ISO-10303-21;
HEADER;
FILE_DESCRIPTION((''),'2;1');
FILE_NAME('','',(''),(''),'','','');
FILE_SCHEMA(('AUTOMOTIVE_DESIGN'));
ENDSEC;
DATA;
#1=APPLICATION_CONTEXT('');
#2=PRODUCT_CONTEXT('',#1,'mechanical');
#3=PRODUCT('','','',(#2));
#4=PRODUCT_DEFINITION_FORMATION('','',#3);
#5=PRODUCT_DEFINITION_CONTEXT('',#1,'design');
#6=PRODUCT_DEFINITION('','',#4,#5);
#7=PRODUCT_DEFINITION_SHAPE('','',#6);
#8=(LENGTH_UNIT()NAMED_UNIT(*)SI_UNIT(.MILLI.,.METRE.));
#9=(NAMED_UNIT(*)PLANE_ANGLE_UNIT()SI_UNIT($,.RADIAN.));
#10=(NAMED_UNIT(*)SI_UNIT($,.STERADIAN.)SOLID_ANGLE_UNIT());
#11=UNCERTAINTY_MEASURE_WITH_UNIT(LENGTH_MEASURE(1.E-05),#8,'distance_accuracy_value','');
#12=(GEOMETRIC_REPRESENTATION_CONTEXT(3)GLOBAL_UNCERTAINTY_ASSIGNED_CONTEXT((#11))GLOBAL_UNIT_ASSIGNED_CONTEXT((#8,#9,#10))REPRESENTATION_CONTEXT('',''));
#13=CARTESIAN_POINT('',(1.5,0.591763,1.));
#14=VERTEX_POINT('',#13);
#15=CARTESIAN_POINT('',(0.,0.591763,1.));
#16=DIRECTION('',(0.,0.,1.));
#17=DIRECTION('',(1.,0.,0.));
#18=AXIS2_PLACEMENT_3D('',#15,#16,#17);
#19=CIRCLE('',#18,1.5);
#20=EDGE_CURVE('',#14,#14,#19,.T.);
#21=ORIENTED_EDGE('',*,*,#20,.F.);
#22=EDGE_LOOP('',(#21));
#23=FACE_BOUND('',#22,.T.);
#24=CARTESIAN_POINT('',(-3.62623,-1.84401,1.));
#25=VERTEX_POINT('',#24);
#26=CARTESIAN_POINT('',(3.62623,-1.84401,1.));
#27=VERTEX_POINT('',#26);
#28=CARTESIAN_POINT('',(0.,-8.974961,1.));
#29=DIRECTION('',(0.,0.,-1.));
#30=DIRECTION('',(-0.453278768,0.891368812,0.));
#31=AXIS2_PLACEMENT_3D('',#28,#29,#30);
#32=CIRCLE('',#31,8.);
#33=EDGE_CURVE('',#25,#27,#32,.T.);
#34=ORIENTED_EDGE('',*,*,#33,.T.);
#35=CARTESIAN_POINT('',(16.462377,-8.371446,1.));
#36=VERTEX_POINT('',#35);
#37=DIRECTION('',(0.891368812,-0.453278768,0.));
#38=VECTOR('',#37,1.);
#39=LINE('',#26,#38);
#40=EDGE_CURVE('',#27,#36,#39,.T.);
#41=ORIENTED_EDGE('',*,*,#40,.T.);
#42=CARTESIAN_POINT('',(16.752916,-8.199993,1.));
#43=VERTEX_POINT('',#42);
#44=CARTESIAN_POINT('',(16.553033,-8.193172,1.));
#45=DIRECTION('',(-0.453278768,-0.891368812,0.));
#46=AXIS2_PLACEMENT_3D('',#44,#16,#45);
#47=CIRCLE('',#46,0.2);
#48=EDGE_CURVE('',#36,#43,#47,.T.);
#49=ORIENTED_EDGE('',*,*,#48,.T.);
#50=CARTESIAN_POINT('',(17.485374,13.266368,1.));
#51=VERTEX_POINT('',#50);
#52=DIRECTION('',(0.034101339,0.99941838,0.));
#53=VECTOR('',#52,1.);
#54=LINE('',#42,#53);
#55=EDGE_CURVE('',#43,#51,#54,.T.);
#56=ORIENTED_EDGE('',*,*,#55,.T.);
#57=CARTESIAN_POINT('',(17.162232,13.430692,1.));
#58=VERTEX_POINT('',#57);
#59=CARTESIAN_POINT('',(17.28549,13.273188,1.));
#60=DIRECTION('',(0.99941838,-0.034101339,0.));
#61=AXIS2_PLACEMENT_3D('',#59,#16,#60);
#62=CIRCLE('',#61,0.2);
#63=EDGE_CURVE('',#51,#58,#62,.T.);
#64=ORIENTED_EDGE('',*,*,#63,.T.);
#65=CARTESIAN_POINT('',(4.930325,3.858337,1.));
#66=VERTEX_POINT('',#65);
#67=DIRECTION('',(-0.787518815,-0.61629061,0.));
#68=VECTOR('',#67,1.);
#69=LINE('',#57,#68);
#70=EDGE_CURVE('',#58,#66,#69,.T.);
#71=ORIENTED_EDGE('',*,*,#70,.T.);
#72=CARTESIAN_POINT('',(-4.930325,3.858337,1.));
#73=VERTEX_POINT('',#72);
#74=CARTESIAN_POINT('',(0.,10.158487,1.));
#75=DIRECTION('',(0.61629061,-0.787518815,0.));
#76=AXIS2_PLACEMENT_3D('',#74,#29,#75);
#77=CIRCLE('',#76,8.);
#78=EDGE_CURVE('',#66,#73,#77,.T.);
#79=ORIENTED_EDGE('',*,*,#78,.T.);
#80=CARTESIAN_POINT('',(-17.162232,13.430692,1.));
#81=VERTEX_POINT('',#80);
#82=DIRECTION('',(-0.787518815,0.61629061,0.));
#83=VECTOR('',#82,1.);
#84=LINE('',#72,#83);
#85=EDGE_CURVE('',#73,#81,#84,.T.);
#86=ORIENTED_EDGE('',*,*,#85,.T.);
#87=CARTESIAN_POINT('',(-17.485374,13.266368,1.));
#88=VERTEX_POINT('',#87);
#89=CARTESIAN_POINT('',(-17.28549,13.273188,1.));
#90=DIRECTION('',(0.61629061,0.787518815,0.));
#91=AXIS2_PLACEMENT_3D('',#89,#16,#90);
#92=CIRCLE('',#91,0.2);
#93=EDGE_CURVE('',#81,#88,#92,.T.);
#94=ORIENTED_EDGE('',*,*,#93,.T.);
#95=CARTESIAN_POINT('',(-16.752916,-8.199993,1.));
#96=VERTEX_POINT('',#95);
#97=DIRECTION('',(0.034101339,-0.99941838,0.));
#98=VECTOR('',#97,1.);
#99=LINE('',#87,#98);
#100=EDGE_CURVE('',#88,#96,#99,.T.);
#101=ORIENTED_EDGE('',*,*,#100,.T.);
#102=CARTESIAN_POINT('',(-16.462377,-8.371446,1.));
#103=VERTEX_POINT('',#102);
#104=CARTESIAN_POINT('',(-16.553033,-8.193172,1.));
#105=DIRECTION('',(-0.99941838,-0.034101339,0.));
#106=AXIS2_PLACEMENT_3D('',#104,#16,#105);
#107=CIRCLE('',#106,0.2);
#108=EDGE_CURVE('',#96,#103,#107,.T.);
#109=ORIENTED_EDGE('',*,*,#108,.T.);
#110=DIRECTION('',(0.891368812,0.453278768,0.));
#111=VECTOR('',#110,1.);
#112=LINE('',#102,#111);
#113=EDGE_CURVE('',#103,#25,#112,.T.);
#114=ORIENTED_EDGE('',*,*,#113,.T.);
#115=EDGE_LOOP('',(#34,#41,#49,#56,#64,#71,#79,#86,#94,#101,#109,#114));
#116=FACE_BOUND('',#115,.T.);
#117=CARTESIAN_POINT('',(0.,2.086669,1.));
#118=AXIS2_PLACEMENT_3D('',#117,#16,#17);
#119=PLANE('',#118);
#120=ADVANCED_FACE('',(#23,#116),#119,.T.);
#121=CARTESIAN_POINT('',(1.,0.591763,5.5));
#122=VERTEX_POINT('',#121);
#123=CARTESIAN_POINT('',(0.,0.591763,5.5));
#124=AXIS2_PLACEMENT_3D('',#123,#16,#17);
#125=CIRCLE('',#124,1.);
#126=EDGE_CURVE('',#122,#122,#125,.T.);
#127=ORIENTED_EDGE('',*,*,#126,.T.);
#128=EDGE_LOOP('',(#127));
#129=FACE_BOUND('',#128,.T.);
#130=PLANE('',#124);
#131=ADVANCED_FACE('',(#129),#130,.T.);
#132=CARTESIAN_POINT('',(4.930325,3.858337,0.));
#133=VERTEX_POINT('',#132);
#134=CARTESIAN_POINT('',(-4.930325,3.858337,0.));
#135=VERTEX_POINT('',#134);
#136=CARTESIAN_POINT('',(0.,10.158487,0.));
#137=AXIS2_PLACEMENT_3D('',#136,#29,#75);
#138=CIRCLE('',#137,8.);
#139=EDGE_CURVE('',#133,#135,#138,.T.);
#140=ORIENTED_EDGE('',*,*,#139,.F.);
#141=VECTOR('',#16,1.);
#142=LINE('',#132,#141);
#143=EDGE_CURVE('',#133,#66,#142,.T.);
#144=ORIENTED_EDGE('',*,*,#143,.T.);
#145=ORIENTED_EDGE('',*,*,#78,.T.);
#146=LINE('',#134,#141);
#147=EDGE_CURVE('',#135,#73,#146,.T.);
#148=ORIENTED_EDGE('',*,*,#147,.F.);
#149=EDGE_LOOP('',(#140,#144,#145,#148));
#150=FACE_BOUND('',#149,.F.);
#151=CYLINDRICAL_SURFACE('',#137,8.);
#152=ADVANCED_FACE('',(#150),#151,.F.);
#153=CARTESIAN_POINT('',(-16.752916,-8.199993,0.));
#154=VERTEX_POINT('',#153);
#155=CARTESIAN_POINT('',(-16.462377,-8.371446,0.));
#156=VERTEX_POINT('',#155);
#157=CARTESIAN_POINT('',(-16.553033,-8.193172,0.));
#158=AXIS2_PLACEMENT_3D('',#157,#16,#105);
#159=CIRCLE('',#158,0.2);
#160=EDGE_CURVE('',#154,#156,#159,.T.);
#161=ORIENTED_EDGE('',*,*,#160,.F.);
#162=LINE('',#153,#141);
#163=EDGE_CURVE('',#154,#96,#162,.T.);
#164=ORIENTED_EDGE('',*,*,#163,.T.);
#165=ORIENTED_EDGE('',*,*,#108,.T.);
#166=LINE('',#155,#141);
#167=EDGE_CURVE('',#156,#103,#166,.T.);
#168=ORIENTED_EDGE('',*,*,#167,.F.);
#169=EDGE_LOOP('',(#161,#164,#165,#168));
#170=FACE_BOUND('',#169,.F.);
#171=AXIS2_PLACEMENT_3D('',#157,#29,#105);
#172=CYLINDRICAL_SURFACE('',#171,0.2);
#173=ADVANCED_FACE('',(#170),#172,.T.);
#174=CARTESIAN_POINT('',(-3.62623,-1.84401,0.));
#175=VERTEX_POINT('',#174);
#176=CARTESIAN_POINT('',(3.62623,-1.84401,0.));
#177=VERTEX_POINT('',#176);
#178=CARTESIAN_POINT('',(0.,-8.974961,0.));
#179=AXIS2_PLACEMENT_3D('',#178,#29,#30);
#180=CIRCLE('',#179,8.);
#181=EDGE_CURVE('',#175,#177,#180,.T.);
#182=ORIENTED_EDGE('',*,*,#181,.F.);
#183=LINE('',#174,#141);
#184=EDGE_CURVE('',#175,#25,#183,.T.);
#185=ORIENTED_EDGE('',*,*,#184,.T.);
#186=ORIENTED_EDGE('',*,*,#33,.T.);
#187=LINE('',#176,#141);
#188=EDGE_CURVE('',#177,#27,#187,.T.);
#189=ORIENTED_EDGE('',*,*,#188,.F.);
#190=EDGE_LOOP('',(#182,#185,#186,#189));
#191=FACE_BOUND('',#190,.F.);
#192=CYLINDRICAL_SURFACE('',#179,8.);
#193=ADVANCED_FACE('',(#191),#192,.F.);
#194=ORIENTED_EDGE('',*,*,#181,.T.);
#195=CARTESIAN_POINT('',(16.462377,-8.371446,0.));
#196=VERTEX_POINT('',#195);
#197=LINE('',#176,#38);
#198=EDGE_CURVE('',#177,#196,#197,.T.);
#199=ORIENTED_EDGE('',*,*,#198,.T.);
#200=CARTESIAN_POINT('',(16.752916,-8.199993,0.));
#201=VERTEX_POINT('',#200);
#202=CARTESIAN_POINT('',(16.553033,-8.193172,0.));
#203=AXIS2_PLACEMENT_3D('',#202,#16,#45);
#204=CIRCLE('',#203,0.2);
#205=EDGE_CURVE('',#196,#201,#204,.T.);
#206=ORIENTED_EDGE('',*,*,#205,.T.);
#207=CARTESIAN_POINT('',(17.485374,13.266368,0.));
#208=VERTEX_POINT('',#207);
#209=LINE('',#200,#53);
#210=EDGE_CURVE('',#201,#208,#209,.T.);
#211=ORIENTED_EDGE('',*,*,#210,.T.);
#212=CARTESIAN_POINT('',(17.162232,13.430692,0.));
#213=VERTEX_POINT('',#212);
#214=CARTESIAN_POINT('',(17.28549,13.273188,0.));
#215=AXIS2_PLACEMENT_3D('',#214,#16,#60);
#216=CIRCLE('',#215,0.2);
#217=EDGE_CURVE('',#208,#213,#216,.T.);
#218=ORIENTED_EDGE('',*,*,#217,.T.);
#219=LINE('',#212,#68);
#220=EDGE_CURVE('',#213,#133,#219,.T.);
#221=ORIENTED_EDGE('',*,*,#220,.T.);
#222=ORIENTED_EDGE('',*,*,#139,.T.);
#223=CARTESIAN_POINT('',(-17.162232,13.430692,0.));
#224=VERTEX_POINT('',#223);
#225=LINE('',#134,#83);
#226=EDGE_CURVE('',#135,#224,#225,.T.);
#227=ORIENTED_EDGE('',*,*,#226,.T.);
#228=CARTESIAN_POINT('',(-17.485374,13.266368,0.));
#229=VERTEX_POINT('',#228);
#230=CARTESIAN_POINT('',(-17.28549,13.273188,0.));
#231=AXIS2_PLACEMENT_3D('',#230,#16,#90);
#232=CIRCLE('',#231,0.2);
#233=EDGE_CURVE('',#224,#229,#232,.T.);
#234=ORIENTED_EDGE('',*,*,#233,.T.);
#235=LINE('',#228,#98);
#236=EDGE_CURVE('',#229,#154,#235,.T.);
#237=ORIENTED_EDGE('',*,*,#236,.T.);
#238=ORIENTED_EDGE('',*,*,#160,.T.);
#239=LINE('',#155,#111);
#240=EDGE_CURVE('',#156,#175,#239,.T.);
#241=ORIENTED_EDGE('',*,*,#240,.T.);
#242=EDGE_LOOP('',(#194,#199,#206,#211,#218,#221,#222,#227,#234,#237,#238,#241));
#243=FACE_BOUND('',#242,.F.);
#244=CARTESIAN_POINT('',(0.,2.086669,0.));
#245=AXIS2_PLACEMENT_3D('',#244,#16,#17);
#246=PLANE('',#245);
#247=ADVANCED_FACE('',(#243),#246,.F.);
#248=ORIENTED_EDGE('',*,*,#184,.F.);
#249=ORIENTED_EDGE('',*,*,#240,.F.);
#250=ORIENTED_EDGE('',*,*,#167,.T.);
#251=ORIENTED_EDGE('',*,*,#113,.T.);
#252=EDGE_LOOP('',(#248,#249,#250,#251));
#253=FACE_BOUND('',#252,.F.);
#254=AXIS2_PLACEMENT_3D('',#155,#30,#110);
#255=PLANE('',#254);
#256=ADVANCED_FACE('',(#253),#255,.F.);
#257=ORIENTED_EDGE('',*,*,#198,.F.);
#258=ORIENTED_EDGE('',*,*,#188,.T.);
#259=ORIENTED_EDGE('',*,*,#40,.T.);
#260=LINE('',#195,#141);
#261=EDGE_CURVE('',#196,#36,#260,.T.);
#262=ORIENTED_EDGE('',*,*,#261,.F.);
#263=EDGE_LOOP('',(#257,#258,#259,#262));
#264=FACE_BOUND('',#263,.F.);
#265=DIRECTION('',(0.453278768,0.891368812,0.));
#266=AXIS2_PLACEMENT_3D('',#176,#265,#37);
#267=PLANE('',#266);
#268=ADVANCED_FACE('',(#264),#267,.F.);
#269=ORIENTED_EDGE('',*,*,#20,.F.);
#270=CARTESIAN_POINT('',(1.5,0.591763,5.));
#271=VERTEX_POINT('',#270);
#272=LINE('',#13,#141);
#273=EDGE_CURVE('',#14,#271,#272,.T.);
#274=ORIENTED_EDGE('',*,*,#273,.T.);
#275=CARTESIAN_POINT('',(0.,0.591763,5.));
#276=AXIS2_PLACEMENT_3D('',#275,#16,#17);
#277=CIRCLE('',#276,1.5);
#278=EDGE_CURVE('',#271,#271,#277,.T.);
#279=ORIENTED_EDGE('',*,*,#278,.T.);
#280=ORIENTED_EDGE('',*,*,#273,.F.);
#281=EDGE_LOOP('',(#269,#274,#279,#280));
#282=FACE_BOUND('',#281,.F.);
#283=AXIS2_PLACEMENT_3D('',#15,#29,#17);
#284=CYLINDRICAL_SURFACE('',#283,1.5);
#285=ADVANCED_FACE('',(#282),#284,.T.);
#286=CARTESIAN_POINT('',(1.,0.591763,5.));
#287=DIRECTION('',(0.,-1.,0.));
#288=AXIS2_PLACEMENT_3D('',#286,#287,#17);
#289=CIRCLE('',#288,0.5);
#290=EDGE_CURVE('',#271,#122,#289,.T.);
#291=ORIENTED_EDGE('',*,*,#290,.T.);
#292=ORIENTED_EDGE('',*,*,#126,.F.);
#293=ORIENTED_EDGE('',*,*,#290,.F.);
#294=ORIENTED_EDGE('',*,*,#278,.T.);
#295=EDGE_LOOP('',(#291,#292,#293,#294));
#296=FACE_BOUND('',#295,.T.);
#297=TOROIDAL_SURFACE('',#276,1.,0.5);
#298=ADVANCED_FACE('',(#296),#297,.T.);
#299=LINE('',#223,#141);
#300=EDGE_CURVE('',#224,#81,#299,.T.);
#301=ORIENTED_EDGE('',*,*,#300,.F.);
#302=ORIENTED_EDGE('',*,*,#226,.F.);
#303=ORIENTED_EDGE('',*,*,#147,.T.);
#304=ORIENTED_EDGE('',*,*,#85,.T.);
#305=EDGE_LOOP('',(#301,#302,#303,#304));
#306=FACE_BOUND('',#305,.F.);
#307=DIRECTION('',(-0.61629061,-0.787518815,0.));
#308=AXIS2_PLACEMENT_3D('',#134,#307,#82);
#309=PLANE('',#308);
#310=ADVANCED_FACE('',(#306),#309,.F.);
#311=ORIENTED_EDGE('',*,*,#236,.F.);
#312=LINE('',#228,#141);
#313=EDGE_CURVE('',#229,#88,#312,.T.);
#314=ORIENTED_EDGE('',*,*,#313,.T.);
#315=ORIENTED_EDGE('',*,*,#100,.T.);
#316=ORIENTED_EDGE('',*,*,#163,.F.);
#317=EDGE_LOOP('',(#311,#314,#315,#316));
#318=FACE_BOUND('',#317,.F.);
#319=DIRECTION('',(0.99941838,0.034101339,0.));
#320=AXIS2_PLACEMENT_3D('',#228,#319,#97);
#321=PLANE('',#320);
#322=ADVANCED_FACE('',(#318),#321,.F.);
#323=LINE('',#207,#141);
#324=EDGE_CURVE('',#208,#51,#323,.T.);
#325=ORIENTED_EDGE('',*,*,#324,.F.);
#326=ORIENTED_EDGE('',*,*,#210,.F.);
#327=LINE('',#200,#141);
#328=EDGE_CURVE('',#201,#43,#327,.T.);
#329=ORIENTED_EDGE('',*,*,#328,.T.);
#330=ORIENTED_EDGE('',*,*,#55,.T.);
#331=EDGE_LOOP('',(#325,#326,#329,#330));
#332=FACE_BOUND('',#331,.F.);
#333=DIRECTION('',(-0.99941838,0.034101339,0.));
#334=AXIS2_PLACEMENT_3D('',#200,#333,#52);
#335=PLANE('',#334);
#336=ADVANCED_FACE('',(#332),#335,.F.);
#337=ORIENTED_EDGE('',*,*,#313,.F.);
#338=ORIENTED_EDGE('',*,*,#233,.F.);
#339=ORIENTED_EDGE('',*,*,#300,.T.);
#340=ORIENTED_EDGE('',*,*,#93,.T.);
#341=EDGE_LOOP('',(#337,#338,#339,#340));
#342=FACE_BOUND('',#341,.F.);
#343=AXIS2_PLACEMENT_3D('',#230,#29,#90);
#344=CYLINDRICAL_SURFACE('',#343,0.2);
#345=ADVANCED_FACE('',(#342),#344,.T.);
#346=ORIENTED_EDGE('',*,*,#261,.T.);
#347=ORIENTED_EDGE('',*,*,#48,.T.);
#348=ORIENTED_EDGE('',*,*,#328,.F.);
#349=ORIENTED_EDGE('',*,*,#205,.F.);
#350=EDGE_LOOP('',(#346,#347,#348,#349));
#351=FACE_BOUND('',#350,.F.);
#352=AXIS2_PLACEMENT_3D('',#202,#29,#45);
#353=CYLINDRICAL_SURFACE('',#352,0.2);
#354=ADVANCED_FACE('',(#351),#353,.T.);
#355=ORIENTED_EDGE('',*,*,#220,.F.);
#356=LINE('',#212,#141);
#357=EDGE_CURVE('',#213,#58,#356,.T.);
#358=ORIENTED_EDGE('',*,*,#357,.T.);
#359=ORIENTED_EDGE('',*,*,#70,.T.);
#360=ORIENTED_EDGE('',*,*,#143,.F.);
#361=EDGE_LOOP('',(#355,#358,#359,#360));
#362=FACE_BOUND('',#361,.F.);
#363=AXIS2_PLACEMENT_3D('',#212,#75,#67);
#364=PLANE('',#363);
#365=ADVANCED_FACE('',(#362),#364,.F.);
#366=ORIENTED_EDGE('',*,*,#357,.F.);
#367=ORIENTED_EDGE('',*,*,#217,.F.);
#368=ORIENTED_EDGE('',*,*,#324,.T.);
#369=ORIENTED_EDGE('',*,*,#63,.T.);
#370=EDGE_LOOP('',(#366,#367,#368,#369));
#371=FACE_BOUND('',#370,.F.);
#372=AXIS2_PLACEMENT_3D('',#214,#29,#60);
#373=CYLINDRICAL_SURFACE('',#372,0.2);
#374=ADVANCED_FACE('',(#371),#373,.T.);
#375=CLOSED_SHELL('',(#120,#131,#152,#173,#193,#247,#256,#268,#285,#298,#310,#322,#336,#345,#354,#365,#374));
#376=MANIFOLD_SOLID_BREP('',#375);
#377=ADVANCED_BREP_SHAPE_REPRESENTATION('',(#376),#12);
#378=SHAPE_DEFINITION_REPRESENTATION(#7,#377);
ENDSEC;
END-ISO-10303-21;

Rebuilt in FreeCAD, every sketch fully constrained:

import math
import FreeCAD as App
import Part
import Sketcher
from FreeCAD import Vector


def edges_at(feature, points):
    """Names of the edges that pass closest to the given points."""
    edges = feature.Shape.Edges
    near = lambda p: min(range(len(edges)), key=lambda i: edges[i].distToShape(Part.Vertex(*p))[0])
    return sorted({f"Edge{near(p) + 1}" for p in points})

doc = App.newDocument("Part")
body = doc.addObject("PartDesign::Body", "Body")

# Sketch on XY plane
sketch1 = body.newObject("Sketcher::SketchObject", "Sketch")
sketch1.AttachmentSupport = (doc.getObject("XY_Plane"), [""])
sketch1.MapMode = "FlatFace"
sketch1.addGeometry(Part.LineSegment(Vector(17.162232, 13.430692, 0), Vector(4.930325, 3.858337, 0)), False)
sketch1.addGeometry(Part.ArcOfCircle(Part.Circle(Vector(0, 10.158487, 0), Vector(0, 0, 1), 8), math.radians(-128.045758), math.radians(-51.954242)), False)
sketch1.addGeometry(Part.LineSegment(Vector(-4.930325, 3.858337, 0), Vector(-17.162232, 13.430692, 0)), False)
sketch1.addGeometry(Part.ArcOfCircle(Part.Circle(Vector(-17.28549, 13.273188, 0), Vector(0, 0, 1), 0.2), math.radians(51.954242), math.radians(181.954242)), False)
sketch1.addGeometry(Part.LineSegment(Vector(-17.485374, 13.266368, 0), Vector(-16.752916, -8.199993, 0)), False)
sketch1.addGeometry(Part.ArcOfCircle(Part.Circle(Vector(-16.553033, -8.193172, 0), Vector(0, 0, 1), 0.2), math.radians(-178.045758), math.radians(-63.045759)), False)
sketch1.addGeometry(Part.LineSegment(Vector(-16.462377, -8.371446, 0), Vector(-3.62623, -1.84401, 0)), False)
sketch1.addGeometry(Part.ArcOfCircle(Part.Circle(Vector(0, -8.974961, 0), Vector(0, 0, 1), 8), math.radians(63.045758), math.radians(116.954242)), False)
sketch1.addGeometry(Part.LineSegment(Vector(3.62623, -1.84401, 0), Vector(16.462377, -8.371446, 0)), False)
sketch1.addGeometry(Part.ArcOfCircle(Part.Circle(Vector(16.553033, -8.193172, 0), Vector(0, 0, 1), 0.2), math.radians(-116.954241), math.radians(-1.954242)), False)
sketch1.addGeometry(Part.LineSegment(Vector(16.752916, -8.199993, 0), Vector(17.485374, 13.266368, 0)), False)
sketch1.addGeometry(Part.ArcOfCircle(Part.Circle(Vector(17.28549, 13.273188, 0), Vector(0, 0, 1), 0.2), math.radians(-1.954242), math.radians(128.045758)), False)
sketch1.addConstraint(Sketcher.Constraint("Tangent", 0, 2, 1, 2))
sketch1.addConstraint(Sketcher.Constraint("Tangent", 1, 1, 2, 1))
sketch1.addConstraint(Sketcher.Constraint("Tangent", 2, 2, 3, 1))
sketch1.addConstraint(Sketcher.Constraint("Tangent", 3, 2, 4, 1))
sketch1.addConstraint(Sketcher.Constraint("Tangent", 4, 2, 5, 1))
sketch1.addConstraint(Sketcher.Constraint("Tangent", 5, 2, 6, 1))
sketch1.addConstraint(Sketcher.Constraint("Tangent", 6, 2, 7, 2))
sketch1.addConstraint(Sketcher.Constraint("Tangent", 7, 1, 8, 1))
sketch1.addConstraint(Sketcher.Constraint("Tangent", 8, 2, 9, 1))
sketch1.addConstraint(Sketcher.Constraint("Tangent", 9, 2, 10, 1))
sketch1.addConstraint(Sketcher.Constraint("Tangent", 10, 2, 11, 1))
sketch1.addConstraint(Sketcher.Constraint("Tangent", 11, 2, 0, 1))
sketch1.addConstraint(Sketcher.Constraint("Equal", 3, 5))
sketch1.addConstraint(Sketcher.Constraint("Equal", 1, 7))
sketch1.addConstraint(Sketcher.Constraint("Equal", 5, 9))
sketch1.addConstraint(Sketcher.Constraint("Equal", 9, 11))
sketch1.addConstraint(Sketcher.Constraint("Symmetric", 5, 3, 9, 3, -2))
sketch1.addConstraint(Sketcher.Constraint("Symmetric", 3, 3, 11, 3, -2))
sketch1.addConstraint(Sketcher.Constraint("PointOnObject", 1, 3, -2))
sketch1.addConstraint(Sketcher.Constraint("PointOnObject", 7, 3, -2))
sketch1.addConstraint(Sketcher.Constraint("Radius", 1, 8.0))
sketch1.addConstraint(Sketcher.Constraint("Radius", 3, 0.2))
sketch1.addConstraint(Sketcher.Constraint("DistanceX", 7, 1, 11, 2, 13.536002))
sketch1.addConstraint(Sketcher.Constraint("DistanceY", 1, 3, 3, 3, 3.114701))
sketch1.addConstraint(Sketcher.Constraint("DistanceX", 2, 2, 5, 3, 0.6092))
sketch1.addConstraint(Sketcher.Constraint("DistanceY", 7, 1, 11, 2, 15.274702))
sketch1.addConstraint(Sketcher.Constraint("Distance", 0, 15.532209))
sketch1.addConstraint(Sketcher.Constraint("DistanceY", -1, 1, 3, 3, 13.273188))
pad1 = body.newObject("PartDesign::Pad", "Pad")
pad1.Profile = sketch1
pad1.Length = 1

# Sketch on XY plane
sketch2 = body.newObject("Sketcher::SketchObject", "Sketch001")
sketch2.AttachmentSupport = (doc.getObject("XY_Plane"), [""])
sketch2.MapMode = "FlatFace"
sketch2.AttachmentOffset = App.Placement(Vector(0, 0, 1), App.Rotation())
sketch2.addGeometry(Part.Circle(Vector(0, 0.591763, 0), Vector(0, 0, 1), 1.5), False)
sketch2.addConstraint(Sketcher.Constraint("PointOnObject", 0, 3, -2))
sketch2.addConstraint(Sketcher.Constraint("Diameter", 0, 3.0))
sketch2.addConstraint(Sketcher.Constraint("DistanceY", -1, 1, 0, 3, 0.591763))
pad2 = body.newObject("PartDesign::Pad", "Pad001")
pad2.Profile = sketch2
pad2.Length = 4.5
doc.recompute()

fillet = body.newObject("PartDesign::Fillet", "Fillet")
fillet.Base = (pad2, edges_at(pad2, [(-1.5, 0.592, 5.5)]))
fillet.Radius = 0.5

doc.recompute()
